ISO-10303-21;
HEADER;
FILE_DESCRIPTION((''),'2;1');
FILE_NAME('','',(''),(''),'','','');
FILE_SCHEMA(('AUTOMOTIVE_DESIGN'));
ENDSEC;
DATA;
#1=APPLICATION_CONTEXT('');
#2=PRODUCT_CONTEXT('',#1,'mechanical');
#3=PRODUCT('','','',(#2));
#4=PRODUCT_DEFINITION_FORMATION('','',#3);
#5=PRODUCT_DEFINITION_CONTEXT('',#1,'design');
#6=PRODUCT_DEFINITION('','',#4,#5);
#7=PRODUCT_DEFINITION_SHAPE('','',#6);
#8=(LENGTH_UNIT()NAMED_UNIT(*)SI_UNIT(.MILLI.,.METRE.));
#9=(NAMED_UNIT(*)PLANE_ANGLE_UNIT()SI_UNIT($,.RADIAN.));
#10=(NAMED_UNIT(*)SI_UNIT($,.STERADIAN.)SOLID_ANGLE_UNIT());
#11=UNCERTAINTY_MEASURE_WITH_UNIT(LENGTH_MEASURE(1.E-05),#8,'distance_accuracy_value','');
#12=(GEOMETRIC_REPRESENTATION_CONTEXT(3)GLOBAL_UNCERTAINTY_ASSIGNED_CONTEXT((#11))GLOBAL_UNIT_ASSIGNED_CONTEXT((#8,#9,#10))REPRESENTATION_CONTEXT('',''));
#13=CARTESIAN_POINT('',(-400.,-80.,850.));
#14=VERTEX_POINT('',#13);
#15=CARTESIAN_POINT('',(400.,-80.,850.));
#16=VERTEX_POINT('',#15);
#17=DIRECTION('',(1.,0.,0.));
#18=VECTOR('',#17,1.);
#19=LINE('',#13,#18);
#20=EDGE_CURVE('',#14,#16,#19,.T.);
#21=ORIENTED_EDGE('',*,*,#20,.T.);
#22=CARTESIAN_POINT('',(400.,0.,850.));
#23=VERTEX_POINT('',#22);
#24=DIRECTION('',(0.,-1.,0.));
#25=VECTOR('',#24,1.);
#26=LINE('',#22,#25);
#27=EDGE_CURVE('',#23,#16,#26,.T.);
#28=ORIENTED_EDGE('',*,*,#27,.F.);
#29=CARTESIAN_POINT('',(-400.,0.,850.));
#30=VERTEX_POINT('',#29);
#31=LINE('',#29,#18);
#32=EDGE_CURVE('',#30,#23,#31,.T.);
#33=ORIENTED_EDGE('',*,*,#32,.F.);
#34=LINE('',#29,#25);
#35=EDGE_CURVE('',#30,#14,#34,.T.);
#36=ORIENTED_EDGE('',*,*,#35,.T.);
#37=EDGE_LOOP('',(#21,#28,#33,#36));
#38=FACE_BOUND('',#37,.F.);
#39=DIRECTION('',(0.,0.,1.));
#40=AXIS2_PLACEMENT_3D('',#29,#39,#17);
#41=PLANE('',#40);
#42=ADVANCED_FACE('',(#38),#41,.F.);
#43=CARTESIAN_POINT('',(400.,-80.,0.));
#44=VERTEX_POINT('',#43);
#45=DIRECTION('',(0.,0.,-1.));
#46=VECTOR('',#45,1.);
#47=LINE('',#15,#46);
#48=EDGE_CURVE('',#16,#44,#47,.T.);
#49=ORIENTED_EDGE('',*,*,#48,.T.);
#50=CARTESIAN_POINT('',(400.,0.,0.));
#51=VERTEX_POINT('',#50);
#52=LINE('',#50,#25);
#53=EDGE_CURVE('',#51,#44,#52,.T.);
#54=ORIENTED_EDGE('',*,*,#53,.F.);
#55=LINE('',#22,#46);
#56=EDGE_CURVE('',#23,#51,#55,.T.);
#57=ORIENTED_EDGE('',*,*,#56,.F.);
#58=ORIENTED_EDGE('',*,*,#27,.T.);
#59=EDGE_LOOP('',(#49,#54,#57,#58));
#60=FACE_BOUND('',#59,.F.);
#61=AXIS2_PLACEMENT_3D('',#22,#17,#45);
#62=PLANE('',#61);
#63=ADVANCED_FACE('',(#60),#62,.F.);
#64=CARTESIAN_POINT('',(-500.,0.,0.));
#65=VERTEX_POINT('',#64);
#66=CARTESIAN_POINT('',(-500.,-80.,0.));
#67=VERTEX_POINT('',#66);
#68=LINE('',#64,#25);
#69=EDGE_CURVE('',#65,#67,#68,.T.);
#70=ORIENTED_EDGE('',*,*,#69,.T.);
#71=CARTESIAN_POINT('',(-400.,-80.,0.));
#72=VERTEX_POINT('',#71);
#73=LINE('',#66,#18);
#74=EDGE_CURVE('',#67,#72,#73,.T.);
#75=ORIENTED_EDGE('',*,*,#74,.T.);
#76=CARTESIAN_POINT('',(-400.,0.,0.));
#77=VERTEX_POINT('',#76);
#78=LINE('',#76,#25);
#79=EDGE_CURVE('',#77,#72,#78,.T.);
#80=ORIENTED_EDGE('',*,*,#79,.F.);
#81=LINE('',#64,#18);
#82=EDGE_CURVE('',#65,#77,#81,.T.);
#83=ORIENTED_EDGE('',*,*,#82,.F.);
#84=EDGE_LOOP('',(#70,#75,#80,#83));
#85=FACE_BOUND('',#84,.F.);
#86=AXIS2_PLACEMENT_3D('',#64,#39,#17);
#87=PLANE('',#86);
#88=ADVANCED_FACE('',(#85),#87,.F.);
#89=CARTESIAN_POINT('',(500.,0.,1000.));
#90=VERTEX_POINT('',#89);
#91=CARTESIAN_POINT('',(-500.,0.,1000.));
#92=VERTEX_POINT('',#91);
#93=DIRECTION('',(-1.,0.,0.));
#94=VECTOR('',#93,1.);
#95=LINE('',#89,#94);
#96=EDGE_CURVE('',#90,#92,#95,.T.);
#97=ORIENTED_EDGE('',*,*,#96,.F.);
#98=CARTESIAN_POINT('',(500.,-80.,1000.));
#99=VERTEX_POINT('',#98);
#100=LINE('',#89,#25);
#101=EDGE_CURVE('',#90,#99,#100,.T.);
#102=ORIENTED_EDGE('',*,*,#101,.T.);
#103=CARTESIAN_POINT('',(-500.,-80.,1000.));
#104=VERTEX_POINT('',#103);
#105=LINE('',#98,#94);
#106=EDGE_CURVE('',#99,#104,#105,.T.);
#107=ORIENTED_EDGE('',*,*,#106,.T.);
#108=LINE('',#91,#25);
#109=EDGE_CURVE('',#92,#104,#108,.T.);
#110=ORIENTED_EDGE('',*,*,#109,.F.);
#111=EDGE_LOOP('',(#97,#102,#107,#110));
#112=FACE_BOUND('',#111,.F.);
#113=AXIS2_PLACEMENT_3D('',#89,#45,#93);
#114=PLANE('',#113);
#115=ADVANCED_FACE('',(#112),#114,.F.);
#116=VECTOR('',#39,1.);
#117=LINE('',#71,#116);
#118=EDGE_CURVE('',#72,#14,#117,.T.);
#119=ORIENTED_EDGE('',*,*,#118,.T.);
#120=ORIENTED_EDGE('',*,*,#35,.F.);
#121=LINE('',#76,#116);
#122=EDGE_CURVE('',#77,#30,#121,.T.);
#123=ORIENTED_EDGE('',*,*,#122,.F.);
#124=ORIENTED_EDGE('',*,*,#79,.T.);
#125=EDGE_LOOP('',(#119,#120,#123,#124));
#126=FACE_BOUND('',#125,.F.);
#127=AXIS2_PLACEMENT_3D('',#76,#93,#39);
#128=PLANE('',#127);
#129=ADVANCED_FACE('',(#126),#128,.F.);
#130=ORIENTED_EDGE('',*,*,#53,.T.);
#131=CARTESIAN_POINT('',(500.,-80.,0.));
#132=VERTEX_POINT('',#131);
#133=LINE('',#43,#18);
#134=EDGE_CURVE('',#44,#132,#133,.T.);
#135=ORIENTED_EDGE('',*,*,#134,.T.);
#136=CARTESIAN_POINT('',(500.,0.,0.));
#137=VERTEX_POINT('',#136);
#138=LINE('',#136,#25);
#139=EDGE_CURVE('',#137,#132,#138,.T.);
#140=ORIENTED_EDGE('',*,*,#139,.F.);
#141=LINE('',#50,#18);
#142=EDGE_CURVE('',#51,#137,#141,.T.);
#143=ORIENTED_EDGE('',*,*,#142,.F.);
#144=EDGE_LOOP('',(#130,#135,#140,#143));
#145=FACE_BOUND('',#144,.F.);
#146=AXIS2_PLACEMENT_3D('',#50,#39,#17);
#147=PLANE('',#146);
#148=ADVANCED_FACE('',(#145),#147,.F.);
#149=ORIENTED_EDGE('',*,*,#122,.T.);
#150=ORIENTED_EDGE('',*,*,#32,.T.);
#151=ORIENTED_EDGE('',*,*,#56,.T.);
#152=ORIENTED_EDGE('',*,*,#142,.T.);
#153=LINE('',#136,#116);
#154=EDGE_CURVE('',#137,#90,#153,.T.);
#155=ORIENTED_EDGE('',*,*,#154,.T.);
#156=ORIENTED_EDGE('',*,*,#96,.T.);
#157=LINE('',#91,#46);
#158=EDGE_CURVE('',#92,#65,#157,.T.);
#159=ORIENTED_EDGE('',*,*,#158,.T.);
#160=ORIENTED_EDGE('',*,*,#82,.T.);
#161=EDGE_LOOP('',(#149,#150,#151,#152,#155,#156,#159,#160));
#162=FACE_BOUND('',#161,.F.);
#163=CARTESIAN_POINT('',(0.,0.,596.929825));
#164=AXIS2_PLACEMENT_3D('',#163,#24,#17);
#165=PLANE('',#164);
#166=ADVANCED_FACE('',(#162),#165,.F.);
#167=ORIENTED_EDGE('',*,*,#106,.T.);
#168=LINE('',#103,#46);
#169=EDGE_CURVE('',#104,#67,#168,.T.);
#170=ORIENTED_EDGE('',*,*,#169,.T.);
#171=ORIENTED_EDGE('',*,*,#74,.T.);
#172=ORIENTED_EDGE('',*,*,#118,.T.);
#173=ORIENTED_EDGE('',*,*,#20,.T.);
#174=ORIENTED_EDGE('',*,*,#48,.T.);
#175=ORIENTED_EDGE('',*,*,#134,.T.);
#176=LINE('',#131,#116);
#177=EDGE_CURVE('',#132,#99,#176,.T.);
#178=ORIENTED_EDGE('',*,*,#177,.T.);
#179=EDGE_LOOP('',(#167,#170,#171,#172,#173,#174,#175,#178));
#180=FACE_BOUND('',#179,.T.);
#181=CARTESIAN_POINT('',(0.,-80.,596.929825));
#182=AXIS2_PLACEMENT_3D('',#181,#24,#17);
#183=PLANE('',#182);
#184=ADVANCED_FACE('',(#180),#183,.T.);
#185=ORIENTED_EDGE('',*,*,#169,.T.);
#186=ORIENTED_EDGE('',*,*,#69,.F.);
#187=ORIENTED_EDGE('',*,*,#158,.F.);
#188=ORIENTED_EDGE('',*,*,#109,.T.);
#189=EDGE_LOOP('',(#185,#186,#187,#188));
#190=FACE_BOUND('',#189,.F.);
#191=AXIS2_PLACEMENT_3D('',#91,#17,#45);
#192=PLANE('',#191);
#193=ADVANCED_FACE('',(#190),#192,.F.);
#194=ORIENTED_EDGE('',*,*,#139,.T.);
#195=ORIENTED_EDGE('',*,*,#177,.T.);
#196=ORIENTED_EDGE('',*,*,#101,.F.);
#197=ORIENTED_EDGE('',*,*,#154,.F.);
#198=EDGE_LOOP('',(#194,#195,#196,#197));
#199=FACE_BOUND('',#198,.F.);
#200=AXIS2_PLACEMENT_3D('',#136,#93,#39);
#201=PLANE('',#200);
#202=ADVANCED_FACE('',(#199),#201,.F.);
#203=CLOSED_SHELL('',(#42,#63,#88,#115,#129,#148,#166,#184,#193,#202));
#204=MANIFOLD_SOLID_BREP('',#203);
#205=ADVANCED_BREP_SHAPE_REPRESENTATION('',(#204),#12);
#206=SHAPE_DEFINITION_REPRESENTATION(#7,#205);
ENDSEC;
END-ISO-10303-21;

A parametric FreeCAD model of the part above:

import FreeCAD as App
import Part
import Sketcher
Q = App.Units.Quantity


def add_polygon(sketch, points):
    """Adds a closed chain of lines whose ends are joined by coincident constraints."""
    first, n = sketch.GeometryCount, len(points)
    for a, b in zip(points, points[1:] + points[:1]):
        sketch.addGeometry(Part.LineSegment(App.Vector(*a, 0), App.Vector(*b, 0)), False)
    for i in range(n):
        sketch.addConstraint(Sketcher.Constraint("Coincident", first + i, 2, first + (i + 1) % n, 1))

doc = App.newDocument("Part")
body = doc.addObject("PartDesign::Body", "Body")

sketch1 = body.newObject("Sketcher::SketchObject", "Sketch")
sketch1.AttachmentSupport = (doc.getObject("XZ_Plane"), [""])
sketch1.MapMode = "FlatFace"
add_polygon(sketch1, [(-400, 0), (-400, 850), (400, 850), (400, 0), (500, 0), (500, 1000), (-500, 1000), (-500, 0)])
sketch1.addConstraint(Sketcher.Constraint("Vertical", 0))
sketch1.addConstraint(Sketcher.Constraint("Horizontal", 1))
sketch1.addConstraint(Sketcher.Constraint("Vertical", 2))
sketch1.addConstraint(Sketcher.Constraint("Horizontal", 3))
sketch1.addConstraint(Sketcher.Constraint("Vertical", 4))
sketch1.addConstraint(Sketcher.Constraint("Horizontal", 5))
sketch1.addConstraint(Sketcher.Constraint("Vertical", 6))
sketch1.addConstraint(Sketcher.Constraint("Horizontal", 7))
sketch1.addConstraint(Sketcher.Constraint("Symmetric", 3, 2, 6, 2, -1, 1))
sketch1.addConstraint(Sketcher.Constraint("Symmetric", 2, 2, 7, 2, -2))
sketch1.addConstraint(Sketcher.Constraint("Equal", 5, 4))
sketch1.addConstraint(Sketcher.Constraint("DistanceX", 1, 1, 1, 2, Q("800 mm")))
sketch1.addConstraint(Sketcher.Constraint("DistanceX", 3, 1, 3, 2, Q("100 mm")))
sketch1.addConstraint(Sketcher.Constraint("DistanceY", 0, 1, 0, 2, Q("850 mm")))
pad1 = body.newObject("PartDesign::Pad", "Pad")
pad1.Profile = sketch1
pad1.Length = 80

doc.recompute()
